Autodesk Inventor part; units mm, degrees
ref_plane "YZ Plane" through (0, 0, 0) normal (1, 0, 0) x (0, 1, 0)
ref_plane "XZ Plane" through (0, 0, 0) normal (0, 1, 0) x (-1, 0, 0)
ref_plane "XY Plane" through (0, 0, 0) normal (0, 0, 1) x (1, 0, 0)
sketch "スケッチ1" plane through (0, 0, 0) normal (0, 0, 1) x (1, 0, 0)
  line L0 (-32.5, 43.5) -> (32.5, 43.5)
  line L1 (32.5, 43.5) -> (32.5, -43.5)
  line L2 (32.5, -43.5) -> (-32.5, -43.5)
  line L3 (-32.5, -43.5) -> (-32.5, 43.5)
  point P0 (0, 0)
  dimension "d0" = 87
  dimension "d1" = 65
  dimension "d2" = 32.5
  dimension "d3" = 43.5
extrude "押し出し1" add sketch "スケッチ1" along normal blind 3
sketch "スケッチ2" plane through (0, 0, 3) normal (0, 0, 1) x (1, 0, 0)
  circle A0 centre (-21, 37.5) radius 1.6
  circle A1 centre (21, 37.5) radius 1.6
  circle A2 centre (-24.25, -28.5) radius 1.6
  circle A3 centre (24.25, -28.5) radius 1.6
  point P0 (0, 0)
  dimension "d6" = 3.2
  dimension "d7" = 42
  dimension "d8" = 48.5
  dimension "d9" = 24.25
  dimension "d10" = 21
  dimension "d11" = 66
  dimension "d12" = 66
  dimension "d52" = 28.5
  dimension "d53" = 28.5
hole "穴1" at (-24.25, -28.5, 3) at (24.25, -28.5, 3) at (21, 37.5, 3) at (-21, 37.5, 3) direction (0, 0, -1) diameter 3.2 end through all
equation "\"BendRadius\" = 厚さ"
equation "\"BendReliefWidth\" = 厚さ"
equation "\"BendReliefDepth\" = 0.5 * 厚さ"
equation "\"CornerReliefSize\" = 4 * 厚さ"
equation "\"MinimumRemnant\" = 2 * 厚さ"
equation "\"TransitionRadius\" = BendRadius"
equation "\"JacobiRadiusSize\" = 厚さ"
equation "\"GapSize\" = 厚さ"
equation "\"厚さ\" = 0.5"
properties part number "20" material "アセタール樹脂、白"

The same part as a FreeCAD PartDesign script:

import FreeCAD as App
import Part
import Sketcher
Q = App.Units.Quantity


def add_polygon(sketch, points):
    """Adds a closed chain of lines whose ends are joined by coincident constraints."""
    first, n = sketch.GeometryCount, len(points)
    for a, b in zip(points, points[1:] + points[:1]):
        sketch.addGeometry(Part.LineSegment(App.Vector(*a, 0), App.Vector(*b, 0)), False)
    for i in range(n):
        sketch.addConstraint(Sketcher.Constraint("Coincident", first + i, 2, first + (i + 1) % n, 1))

doc = App.newDocument("Part")
body = doc.addObject("PartDesign::Body", "Body")

# Sketch on XY plane
sketch1 = body.newObject("Sketcher::SketchObject", "Sketch")
sketch1.AttachmentSupport = (doc.getObject("XY_Plane"), [""])
sketch1.MapMode = "FlatFace"
add_polygon(sketch1, [(32, 44), (-32, 44), (-32, -44), (32, -44)])  # lines 0-3
sketch1.addConstraint([
    Sketcher.Constraint("Horizontal", 0),
    Sketcher.Constraint("Vertical", 1),
    Sketcher.Constraint("Horizontal", 2),
    Sketcher.Constraint("Vertical", 3),
    Sketcher.Constraint("Symmetric", 0, 2, 2, 2, -1, 1),
    Sketcher.Constraint("DistanceX", 0, 2, 0, 1, Q("65 mm")),
    Sketcher.Constraint("DistanceY", 1, 2, 1, 1, Q("87 mm")),
])
pad1 = body.newObject("PartDesign::Pad", "Pad")
pad1.Profile = sketch1
pad1.Length = 3

# Sketch on XY plane
sketch2 = body.newObject("Sketcher::SketchObject", "Sketch001")
sketch2.AttachmentSupport = (doc.getObject("XY_Plane"), [""])
sketch2.MapMode = "FlatFace"
sketch2.AttachmentOffset = App.Placement(App.Vector(0, 0, 3), App.Rotation())
sketch2.addGeometry([
    Part.Circle(App.Vector(-24.2, -28.5, 0), App.Vector(0, 0, 1), 1.6),
    Part.Circle(App.Vector(24.2, -28.5, 0), App.Vector(0, 0, 1), 1.6),
    Part.Circle(App.Vector(21, 37.5, 0), App.Vector(0, 0, 1), 1.6),
    Part.Circle(App.Vector(-21, 37.5, 0), App.Vector(0, 0, 1), 1.6),
], False)
sketch2.addConstraint([
    Sketcher.Constraint("Equal", 0, 1),
    Sketcher.Constraint("Equal", 1, 2),
    Sketcher.Constraint("Equal", 2, 3),
    Sketcher.Constraint("Symmetric", 0, 3, 1, 3, -2),
    Sketcher.Constraint("Symmetric", 2, 3, 3, 3, -2),
    Sketcher.Constraint("Diameter", 0, Q("3.2 mm")),
    Sketcher.Constraint("DistanceX", -1, 1, 2, 3, Q("21 mm")),
    Sketcher.Constraint("DistanceY", 1, 3, 2, 3, Q("66 mm")),
    Sketcher.Constraint("DistanceY", 0, 3, -1, 1, Q("28.5 mm")),
    Sketcher.Constraint("DistanceX", 0, 3, 1, 3, Q("48.5 mm")),
])
doc.recompute()
hole = body.newObject("PartDesign::Hole", "Hole")
hole.Profile = sketch2
hole.ThreadType = "None"
hole.Diameter = 3.2
hole.DepthType = "ThroughAll"

doc.recompute()
